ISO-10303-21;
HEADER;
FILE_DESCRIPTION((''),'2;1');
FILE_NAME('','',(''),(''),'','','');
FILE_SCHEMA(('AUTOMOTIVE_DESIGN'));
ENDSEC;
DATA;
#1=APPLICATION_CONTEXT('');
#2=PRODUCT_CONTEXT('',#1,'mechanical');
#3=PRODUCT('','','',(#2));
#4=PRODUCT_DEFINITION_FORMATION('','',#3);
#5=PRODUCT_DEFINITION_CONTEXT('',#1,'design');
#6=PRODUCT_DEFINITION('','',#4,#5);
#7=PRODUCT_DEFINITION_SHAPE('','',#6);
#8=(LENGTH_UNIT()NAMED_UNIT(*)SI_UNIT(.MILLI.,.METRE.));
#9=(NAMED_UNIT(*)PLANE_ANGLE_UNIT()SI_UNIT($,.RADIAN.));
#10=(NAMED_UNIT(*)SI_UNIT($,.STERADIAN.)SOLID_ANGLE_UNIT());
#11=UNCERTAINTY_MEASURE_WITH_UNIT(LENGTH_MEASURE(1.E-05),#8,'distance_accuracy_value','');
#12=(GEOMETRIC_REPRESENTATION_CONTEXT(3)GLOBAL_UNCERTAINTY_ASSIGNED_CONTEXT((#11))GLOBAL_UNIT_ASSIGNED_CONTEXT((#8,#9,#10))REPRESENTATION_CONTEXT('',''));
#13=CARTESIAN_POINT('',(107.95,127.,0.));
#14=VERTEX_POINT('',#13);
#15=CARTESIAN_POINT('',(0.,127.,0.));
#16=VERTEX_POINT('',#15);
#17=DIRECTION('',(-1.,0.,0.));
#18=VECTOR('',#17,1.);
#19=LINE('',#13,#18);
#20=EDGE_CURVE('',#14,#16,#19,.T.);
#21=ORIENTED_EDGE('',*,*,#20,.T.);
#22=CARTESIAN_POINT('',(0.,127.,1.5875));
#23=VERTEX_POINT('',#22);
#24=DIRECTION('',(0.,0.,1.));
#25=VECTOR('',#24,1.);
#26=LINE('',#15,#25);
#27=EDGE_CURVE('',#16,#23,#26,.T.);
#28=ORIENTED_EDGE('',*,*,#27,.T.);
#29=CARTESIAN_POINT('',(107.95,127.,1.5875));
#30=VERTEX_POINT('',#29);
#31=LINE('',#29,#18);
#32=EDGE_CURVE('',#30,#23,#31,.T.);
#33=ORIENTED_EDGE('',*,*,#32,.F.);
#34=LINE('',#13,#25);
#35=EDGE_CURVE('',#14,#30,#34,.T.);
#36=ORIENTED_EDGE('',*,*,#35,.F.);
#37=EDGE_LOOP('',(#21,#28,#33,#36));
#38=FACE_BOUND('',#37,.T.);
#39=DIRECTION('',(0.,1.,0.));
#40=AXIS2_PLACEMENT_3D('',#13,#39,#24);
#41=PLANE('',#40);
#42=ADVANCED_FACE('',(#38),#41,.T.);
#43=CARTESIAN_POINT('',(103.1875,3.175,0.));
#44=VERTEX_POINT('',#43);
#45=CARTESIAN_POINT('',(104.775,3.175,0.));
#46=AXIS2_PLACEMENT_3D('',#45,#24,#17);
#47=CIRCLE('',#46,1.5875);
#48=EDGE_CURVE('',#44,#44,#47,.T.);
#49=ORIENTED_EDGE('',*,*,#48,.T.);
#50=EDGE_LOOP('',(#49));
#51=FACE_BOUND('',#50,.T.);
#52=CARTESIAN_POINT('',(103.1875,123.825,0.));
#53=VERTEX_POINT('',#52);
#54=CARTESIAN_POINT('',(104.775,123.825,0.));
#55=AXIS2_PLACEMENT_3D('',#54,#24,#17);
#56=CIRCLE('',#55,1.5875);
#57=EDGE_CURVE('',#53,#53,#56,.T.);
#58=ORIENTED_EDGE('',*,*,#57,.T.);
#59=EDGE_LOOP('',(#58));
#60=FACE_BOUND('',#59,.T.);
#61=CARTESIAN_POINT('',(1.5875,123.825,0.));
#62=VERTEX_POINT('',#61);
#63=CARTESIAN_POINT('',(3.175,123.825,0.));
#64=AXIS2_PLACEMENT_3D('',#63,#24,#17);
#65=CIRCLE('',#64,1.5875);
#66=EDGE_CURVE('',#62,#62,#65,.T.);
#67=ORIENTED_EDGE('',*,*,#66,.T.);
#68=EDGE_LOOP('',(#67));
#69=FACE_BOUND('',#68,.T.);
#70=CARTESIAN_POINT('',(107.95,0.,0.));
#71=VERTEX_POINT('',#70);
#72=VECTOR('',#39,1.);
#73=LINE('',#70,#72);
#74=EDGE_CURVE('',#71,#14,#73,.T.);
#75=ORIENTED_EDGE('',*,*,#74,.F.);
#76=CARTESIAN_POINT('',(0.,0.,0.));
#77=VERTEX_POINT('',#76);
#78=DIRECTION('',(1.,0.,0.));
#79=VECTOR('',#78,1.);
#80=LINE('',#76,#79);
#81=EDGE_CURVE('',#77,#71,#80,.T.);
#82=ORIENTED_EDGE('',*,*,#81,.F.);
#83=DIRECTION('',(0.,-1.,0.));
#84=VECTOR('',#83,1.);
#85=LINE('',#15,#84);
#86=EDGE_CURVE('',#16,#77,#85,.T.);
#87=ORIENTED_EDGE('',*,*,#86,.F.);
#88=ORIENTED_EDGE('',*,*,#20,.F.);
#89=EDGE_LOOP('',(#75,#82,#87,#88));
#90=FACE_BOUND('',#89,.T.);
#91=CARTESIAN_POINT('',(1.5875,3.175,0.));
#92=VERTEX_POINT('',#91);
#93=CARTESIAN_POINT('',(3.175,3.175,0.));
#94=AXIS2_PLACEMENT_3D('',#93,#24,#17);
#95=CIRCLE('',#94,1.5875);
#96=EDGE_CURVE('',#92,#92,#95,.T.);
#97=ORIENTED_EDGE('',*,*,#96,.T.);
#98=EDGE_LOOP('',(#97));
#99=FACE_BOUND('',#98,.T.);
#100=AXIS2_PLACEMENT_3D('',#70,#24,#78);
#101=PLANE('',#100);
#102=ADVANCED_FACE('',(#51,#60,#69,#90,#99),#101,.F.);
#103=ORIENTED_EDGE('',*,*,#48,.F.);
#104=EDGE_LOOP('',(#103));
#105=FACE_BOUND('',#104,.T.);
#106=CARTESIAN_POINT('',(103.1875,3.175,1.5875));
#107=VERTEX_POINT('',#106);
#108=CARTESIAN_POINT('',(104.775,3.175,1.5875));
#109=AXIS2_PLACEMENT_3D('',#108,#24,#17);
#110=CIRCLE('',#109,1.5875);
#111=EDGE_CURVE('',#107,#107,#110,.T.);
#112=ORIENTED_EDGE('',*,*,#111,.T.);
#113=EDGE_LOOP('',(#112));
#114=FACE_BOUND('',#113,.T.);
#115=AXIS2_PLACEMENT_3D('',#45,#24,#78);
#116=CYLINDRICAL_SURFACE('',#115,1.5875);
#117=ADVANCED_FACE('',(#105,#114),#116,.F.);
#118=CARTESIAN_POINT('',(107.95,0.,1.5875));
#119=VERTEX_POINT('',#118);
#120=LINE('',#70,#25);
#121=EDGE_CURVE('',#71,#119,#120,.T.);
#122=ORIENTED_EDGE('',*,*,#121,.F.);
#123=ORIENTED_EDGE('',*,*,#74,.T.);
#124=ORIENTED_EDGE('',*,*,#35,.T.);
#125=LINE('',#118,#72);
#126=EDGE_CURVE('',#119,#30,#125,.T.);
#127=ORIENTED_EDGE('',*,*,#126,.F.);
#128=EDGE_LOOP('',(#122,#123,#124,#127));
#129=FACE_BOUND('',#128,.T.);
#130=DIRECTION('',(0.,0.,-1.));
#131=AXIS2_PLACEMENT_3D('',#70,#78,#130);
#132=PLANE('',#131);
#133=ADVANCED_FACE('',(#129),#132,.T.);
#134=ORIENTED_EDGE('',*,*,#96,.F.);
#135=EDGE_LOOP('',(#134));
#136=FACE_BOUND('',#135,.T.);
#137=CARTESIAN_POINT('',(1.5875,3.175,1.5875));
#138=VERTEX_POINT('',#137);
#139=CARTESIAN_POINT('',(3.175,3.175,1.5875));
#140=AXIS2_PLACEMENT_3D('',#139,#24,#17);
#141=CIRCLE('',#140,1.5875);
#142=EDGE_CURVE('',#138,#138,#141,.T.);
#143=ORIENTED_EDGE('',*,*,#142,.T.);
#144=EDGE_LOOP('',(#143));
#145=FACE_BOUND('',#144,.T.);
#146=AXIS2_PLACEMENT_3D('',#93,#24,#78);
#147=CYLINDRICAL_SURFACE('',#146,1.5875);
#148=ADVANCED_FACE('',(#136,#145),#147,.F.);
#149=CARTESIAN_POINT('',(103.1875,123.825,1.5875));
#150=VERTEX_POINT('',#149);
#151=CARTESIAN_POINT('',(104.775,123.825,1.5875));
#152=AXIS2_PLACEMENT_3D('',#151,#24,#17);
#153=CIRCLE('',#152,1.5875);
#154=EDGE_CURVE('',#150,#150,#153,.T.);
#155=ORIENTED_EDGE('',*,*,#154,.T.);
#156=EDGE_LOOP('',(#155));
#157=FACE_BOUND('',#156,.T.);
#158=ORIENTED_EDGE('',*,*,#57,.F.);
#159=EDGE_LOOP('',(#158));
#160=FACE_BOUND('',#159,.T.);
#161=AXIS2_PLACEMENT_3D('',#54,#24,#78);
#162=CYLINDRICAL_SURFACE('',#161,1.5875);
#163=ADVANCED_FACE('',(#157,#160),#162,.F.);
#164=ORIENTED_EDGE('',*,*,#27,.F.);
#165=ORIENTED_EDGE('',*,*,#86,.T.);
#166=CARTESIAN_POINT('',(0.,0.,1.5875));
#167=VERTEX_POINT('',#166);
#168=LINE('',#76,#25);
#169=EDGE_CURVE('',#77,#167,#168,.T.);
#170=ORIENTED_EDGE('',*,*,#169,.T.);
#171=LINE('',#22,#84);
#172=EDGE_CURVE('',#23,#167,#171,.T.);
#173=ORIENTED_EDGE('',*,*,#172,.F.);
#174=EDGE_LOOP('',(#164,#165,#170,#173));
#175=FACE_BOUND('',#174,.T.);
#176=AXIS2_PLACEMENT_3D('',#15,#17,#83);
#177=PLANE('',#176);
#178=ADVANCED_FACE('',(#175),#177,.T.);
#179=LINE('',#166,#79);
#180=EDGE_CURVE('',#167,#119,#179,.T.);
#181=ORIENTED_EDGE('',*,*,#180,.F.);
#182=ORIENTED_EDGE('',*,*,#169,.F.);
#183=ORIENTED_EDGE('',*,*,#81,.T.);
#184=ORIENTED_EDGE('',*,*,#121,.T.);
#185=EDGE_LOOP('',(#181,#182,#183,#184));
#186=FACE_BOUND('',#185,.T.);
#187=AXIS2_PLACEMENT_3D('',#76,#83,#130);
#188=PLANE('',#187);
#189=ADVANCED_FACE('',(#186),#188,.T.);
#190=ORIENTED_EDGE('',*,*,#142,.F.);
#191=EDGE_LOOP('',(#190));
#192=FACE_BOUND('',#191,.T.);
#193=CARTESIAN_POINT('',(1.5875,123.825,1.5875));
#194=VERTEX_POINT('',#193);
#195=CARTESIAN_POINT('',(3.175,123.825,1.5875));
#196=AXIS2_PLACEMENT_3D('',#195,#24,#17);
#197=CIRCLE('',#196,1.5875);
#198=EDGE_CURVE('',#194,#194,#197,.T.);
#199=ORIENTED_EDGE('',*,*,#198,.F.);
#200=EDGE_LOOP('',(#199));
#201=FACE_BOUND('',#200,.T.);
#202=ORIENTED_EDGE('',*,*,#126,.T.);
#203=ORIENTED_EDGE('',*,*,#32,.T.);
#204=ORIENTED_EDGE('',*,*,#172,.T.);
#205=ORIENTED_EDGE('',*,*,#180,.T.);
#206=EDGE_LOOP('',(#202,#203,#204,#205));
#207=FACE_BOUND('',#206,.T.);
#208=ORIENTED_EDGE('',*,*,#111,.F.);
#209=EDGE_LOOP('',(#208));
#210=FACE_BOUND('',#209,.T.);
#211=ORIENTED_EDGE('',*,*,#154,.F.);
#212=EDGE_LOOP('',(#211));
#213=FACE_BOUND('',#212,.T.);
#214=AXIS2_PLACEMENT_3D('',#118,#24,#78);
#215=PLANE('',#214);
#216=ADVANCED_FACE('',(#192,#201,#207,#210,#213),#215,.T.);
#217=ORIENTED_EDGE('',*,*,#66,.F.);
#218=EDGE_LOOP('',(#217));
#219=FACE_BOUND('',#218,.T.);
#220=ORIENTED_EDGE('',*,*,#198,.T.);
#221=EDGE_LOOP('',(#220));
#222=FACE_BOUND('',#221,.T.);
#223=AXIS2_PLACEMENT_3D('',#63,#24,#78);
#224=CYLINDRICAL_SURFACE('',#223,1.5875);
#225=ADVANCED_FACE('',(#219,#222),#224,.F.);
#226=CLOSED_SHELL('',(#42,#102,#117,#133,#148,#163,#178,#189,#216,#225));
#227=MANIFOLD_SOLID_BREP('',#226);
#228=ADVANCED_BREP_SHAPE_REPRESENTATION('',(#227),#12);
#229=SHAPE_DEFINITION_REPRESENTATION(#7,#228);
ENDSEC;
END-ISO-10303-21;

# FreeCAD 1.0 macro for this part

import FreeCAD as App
import Part
import Sketcher

V = App.Vector
Q = App.Units.Quantity

doc = App.newDocument("Part")
body = doc.addObject("PartDesign::Body", "Body")

# Sketch on XY plane
sketch1 = body.newObject("Sketcher::SketchObject", "Sketch")
sketch1.AttachmentSupport = (doc.getObject("XY_Plane"), [""])
sketch1.MapMode = "FlatFace"
sketch1.AttachmentOffset = App.Placement(V(0, 0, 0.0625 * 25.4), App.Rotation())
sketch1.addGeometry(Part.LineSegment(V(0, 127, 0), V(0, 0, 0)), False)
sketch1.addGeometry(Part.LineSegment(V(0, 0, 0), V(107.95, 0, 0)), False)
sketch1.addGeometry(Part.LineSegment(V(107.95, 0, 0), V(107.95, 127, 0)), False)
sketch1.addGeometry(Part.LineSegment(V(107.95, 127, 0), V(0, 127, 0)), False)
sketch1.addGeometry(Part.Circle(V(3.175, 3.175, 0), V(0, 0, 1), 1.5875), False)
sketch1.addGeometry(Part.Circle(V(104.775, 3.175, 0), V(0, 0, 1), 1.5875), False)
sketch1.addGeometry(Part.Circle(V(3.175, 123.825, 0), V(0, 0, 1), 1.5875), False)
sketch1.addGeometry(Part.Circle(V(104.775, 123.825, 0), V(0, 0, 1), 1.5875), False)
sketch1.addConstraint(Sketcher.Constraint("Coincident", 0, 2, 1, 1))
sketch1.addConstraint(Sketcher.Constraint("Coincident", 1, 2, 2, 1))
sketch1.addConstraint(Sketcher.Constraint("Coincident", 2, 2, 3, 1))
sketch1.addConstraint(Sketcher.Constraint("Coincident", 3, 2, 0, 1))
sketch1.addConstraint(Sketcher.Constraint("Vertical", 0))
sketch1.addConstraint(Sketcher.Constraint("Horizontal", 1))
sketch1.addConstraint(Sketcher.Constraint("Vertical", 2))
sketch1.addConstraint(Sketcher.Constraint("Horizontal", 3))
sketch1.addConstraint(Sketcher.Constraint("Coincident", 0, 2, -1, 1))
sketch1.addConstraint(Sketcher.Constraint("Equal", 4, 5))
sketch1.addConstraint(Sketcher.Constraint("Equal", 5, 6))
sketch1.addConstraint(Sketcher.Constraint("Equal", 6, 7))
sketch1.addConstraint(Sketcher.Constraint("Horizontal", 4, 3, 5, 3))
sketch1.addConstraint(Sketcher.Constraint("Horizontal", 6, 3, 7, 3))
sketch1.addConstraint(Sketcher.Constraint("Vertical", 4, 3, 6, 3))
sketch1.addConstraint(Sketcher.Constraint("Vertical", 5, 3, 7, 3))
sketch1.addConstraint(Sketcher.Constraint("DistanceY", 0, 2, 0, 1, Q("5 in")))
sketch1.addConstraint(Sketcher.Constraint("Diameter", 4, Q("0.125 in")))
sketch1.addConstraint(Sketcher.Constraint("DistanceX", 4, 3, 5, 3, Q("4 in")))
sketch1.addConstraint(Sketcher.Constraint("DistanceX", 1, 1, 1, 2, Q("4.25 in")))
sketch1.addConstraint(Sketcher.Constraint("DistanceY", 4, 3, 6, 3, Q("4.75 in")))
sketch1.addConstraint(Sketcher.Constraint("DistanceX", -1, 1, 4, 3, Q("0.125 in")))
sketch1.addConstraint(Sketcher.Constraint("DistanceY", -1, 1, 4, 3, Q("0.125 in")))
pad1 = body.newObject("PartDesign::Pad", "Pad")
pad1.Profile = sketch1
pad1.Length = Q("0.0625 in")
pad1.Reversed = True

doc.recompute()
